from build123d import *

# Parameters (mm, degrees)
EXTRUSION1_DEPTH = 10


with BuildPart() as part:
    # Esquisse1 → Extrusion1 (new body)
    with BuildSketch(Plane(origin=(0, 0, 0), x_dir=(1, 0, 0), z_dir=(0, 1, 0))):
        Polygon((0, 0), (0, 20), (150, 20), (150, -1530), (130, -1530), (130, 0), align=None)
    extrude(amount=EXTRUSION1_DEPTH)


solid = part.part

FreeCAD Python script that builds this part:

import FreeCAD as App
import Part
import Sketcher

doc = App.newDocument("Part")
params = doc.addObject("Spreadsheet::Sheet", "Params")
for row, (alias, value) in enumerate([
    ("sketch1_width", "130 mm"),
    ("sketch1_width2", "20 mm"),
    ("sketch1_height", "1530 mm"),
    ("pad1_length", "10 mm"),
], start=1):
    params.set(f"A{row}", alias)
    params.set(f"B{row}", "=" + value)
    params.setAlias(f"B{row}", alias)

body = doc.addObject("PartDesign::Body", "Body")

# Sketch on XZ plane
sketch1 = doc.addObject("Sketcher::SketchObject", "Sketch")
body.addObject(sketch1)
sketch1.AttachmentSupport = (doc.XZ_Plane, [""])
sketch1.MapMode = "FlatFace"
sketch1.addGeometry([
    Part.LineSegment(App.Vector(0, -20, 0), App.Vector(0, 0, 0)),  # 0
    Part.LineSegment(App.Vector(0, 0, 0), App.Vector(130, 0, 0)),  # 1
    Part.LineSegment(App.Vector(130, 0, 0), App.Vector(130, 1530, 0)),  # 2
    Part.LineSegment(App.Vector(130, 1530, 0), App.Vector(150, 1530, 0)),  # 3
    Part.LineSegment(App.Vector(150, 1530, 0), App.Vector(150, -20, 0)),  # 4
    Part.LineSegment(App.Vector(150, -20, 0), App.Vector(0, -20, 0)),  # 5
], False)
sketch1.addConstraint([
    Sketcher.Constraint("Coincident", 0, 2, 1, 1),
    Sketcher.Constraint("Coincident", 1, 2, 2, 1),
    Sketcher.Constraint("Coincident", 2, 2, 3, 1),
    Sketcher.Constraint("Coincident", 3, 2, 4, 1),
    Sketcher.Constraint("Coincident", 4, 2, 5, 1),
    Sketcher.Constraint("Coincident", 5, 2, 0, 1),
    Sketcher.Constraint("Vertical", 0),
    Sketcher.Constraint("Horizontal", 1),
    Sketcher.Constraint("Vertical", 2),
    Sketcher.Constraint("Horizontal", 3),
    Sketcher.Constraint("Vertical", 4),
    Sketcher.Constraint("Horizontal", 5),
    Sketcher.Constraint("Coincident", 0, 2, -1, 1),
    Sketcher.Constraint("Equal", 3, 0),
    Sketcher.Constraint("DistanceX", 1, 1, 1, 2, 130.0),
    Sketcher.Constraint("DistanceX", 3, 1, 3, 2, 20.0),
    Sketcher.Constraint("DistanceY", 2, 1, 2, 2, 1530.0),
])
sketch1.setExpression("Constraints[14]", "Params.sketch1_width")
sketch1.setExpression("Constraints[15]", "Params.sketch1_width2")
sketch1.setExpression("Constraints[16]", "Params.sketch1_height")
pad1 = doc.addObject("PartDesign::Pad", "Pad")
body.addObject(pad1)
pad1.Profile = sketch1
pad1.setExpression("Length", "Params.pad1_length")
pad1.Reversed = True

doc.recompute()
